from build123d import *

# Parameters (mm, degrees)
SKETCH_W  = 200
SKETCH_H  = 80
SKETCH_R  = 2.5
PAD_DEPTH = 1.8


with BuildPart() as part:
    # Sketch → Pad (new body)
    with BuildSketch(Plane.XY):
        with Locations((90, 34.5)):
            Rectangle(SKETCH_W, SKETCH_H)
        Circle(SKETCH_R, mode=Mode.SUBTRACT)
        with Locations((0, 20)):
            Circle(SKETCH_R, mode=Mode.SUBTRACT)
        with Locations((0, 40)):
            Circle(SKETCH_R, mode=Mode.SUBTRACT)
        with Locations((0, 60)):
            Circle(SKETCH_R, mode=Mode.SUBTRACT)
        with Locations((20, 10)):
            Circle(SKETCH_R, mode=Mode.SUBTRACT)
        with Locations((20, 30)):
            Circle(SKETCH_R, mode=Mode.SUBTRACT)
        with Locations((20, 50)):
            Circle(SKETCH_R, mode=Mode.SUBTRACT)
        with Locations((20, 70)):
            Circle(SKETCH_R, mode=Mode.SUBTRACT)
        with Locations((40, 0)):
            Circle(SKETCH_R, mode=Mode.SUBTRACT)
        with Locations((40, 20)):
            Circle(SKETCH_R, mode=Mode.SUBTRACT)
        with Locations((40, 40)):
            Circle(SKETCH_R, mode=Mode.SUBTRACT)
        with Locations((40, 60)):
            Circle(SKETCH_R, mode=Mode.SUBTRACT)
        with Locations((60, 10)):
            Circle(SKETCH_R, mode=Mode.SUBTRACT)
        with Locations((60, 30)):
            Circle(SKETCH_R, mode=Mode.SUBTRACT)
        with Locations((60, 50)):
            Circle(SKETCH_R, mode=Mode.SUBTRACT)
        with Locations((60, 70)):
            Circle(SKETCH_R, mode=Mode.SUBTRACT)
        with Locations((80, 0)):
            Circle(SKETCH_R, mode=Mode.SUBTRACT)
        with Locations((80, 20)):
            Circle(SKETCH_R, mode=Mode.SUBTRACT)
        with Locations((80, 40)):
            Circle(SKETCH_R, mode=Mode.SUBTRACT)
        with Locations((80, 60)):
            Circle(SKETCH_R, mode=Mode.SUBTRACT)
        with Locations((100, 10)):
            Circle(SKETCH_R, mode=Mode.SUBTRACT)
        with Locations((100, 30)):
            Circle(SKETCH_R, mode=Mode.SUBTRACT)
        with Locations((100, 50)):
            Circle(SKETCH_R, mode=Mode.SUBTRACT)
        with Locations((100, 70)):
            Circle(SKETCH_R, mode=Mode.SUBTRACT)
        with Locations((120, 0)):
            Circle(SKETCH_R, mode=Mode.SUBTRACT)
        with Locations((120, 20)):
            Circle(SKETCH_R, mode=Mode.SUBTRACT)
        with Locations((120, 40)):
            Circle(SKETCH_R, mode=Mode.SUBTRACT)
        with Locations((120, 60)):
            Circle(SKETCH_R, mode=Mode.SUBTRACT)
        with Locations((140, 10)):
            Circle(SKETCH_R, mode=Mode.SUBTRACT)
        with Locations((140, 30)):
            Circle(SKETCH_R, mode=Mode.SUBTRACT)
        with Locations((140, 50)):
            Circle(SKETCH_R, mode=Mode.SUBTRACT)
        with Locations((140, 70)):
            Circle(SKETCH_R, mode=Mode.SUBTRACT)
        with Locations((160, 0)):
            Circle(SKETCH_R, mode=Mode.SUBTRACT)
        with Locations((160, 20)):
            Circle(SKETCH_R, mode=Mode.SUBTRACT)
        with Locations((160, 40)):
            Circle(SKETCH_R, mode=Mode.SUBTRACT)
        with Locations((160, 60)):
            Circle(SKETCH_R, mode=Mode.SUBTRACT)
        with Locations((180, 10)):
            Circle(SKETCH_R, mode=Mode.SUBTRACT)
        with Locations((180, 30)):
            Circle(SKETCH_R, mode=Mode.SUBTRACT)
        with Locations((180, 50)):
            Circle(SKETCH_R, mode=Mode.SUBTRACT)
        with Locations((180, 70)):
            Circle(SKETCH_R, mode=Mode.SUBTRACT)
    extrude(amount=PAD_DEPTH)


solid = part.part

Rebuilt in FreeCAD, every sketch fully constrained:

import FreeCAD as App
import Part
import Sketcher
Q = App.Units.Quantity


def add_polygon(sketch, points):
    """Adds a closed chain of lines whose ends are joined by coincident constraints."""
    first, n = sketch.GeometryCount, len(points)
    for a, b in zip(points, points[1:] + points[:1]):
        sketch.addGeometry(Part.LineSegment(App.Vector(*a, 0), App.Vector(*b, 0)), False)
    for i in range(n):
        sketch.addConstraint(Sketcher.Constraint("Coincident", first + i, 2, first + (i + 1) % n, 1))

doc = App.newDocument("Part")
body = doc.addObject("PartDesign::Body", "Body")

# Sketch on XY plane
sketch1 = body.newObject("Sketcher::SketchObject", "Sketch")
sketch1.AttachmentSupport = (doc.getObject("XY_Plane"), [""])
sketch1.MapMode = "FlatFace"
add_polygon(sketch1, [(-10, 74.5), (-10, -5.5), (190, -5.5), (190, 74.5)])  # lines 0-3
sketch1.addGeometry(Part.Circle(App.Vector(0, 0, 0), App.Vector(0, 0, 1), 2.5), False)  # 4
sketch1.addGeometry(Part.Circle(App.Vector(40, 0, 0), App.Vector(0, 0, 1), 2.5), False)  # 5
sketch1.addGeometry(Part.Circle(App.Vector(20, 10, 0), App.Vector(0, 0, 1), 2.5), False)  # 6
sketch1.addGeometry(Part.Circle(App.Vector(80, 0, 0), App.Vector(0, 0, 1), 2.5), False)  # 7
sketch1.addGeometry(Part.Circle(App.Vector(60, 10, 0), App.Vector(0, 0, 1), 2.5), False)  # 8
sketch1.addGeometry(Part.Circle(App.Vector(0, 20, 0), App.Vector(0, 0, 1), 2.5), False)  # 9
sketch1.addGeometry(Part.Circle(App.Vector(40, 20, 0), App.Vector(0, 0, 1), 2.5), False)  # 10
sketch1.addGeometry(Part.Circle(App.Vector(20, 30, 0), App.Vector(0, 0, 1), 2.5), False)  # 11
sketch1.addGeometry(Part.Circle(App.Vector(80, 20, 0), App.Vector(0, 0, 1), 2.5), False)  # 12
sketch1.addGeometry(Part.Circle(App.Vector(60, 30, 0), App.Vector(0, 0, 1), 2.5), False)  # 13
sketch1.addGeometry(Part.Circle(App.Vector(120, 0, 0), App.Vector(0, 0, 1), 2.5), False)  # 14
sketch1.addGeometry(Part.Circle(App.Vector(100, 10, 0), App.Vector(0, 0, 1), 2.5), False)  # 15
sketch1.addGeometry(Part.Circle(App.Vector(160, 0, 0), App.Vector(0, 0, 1), 2.5), False)  # 16
sketch1.addGeometry(Part.Circle(App.Vector(140, 10, 0), App.Vector(0, 0, 1), 2.5), False)  # 17
sketch1.addGeometry(Part.Circle(App.Vector(180, 10, 0), App.Vector(0, 0, 1), 2.5), False)  # 18
sketch1.addGeometry(Part.Circle(App.Vector(120, 20, 0), App.Vector(0, 0, 1), 2.5), False)  # 19
sketch1.addGeometry(Part.Circle(App.Vector(100, 30, 0), App.Vector(0, 0, 1), 2.5), False)  # 20
sketch1.addGeometry(Part.Circle(App.Vector(160, 20, 0), App.Vector(0, 0, 1), 2.5), False)  # 21
sketch1.addGeometry(Part.Circle(App.Vector(140, 30, 0), App.Vector(0, 0, 1), 2.5), False)  # 22
sketch1.addGeometry(Part.Circle(App.Vector(180, 30, 0), App.Vector(0, 0, 1), 2.5), False)  # 23
sketch1.addGeometry(Part.Circle(App.Vector(0, 40, 0), App.Vector(0, 0, 1), 2.5), False)  # 24
sketch1.addGeometry(Part.Circle(App.Vector(40, 40, 0), App.Vector(0, 0, 1), 2.5), False)  # 25
sketch1.addGeometry(Part.Circle(App.Vector(20, 50, 0), App.Vector(0, 0, 1), 2.5), False)  # 26
sketch1.addGeometry(Part.Circle(App.Vector(80, 40, 0), App.Vector(0, 0, 1), 2.5), False)  # 27
sketch1.addGeometry(Part.Circle(App.Vector(60, 50, 0), App.Vector(0, 0, 1), 2.5), False)  # 28
sketch1.addGeometry(Part.Circle(App.Vector(0, 60, 0), App.Vector(0, 0, 1), 2.5), False)  # 29
sketch1.addGeometry(Part.Circle(App.Vector(40, 60, 0), App.Vector(0, 0, 1), 2.5), False)  # 30
sketch1.addGeometry(Part.Circle(App.Vector(20, 70, 0), App.Vector(0, 0, 1), 2.5), False)  # 31
sketch1.addGeometry(Part.Circle(App.Vector(80, 60, 0), App.Vector(0, 0, 1), 2.5), False)  # 32
sketch1.addGeometry(Part.Circle(App.Vector(60, 70, 0), App.Vector(0, 0, 1), 2.5), False)  # 33
sketch1.addGeometry(Part.Circle(App.Vector(120, 40, 0), App.Vector(0, 0, 1), 2.5), False)  # 34
sketch1.addGeometry(Part.Circle(App.Vector(100, 50, 0), App.Vector(0, 0, 1), 2.5), False)  # 35
sketch1.addGeometry(Part.Circle(App.Vector(160, 40, 0), App.Vector(0, 0, 1), 2.5), False)  # 36
sketch1.addGeometry(Part.Circle(App.Vector(140, 50, 0), App.Vector(0, 0, 1), 2.5), False)  # 37
sketch1.addGeometry(Part.Circle(App.Vector(180, 50, 0), App.Vector(0, 0, 1), 2.5), False)  # 38
sketch1.addGeometry(Part.Circle(App.Vector(120, 60, 0), App.Vector(0, 0, 1), 2.5), False)  # 39
sketch1.addGeometry(Part.Circle(App.Vector(100, 70, 0), App.Vector(0, 0, 1), 2.5), False)  # 40
sketch1.addGeometry(Part.Circle(App.Vector(160, 60, 0), App.Vector(0, 0, 1), 2.5), False)  # 41
sketch1.addGeometry(Part.Circle(App.Vector(140, 70, 0), App.Vector(0, 0, 1), 2.5), False)  # 42
sketch1.addGeometry(Part.Circle(App.Vector(180, 70, 0), App.Vector(0, 0, 1), 2.5), False)  # 43
sketch1.addConstraint([
    Sketcher.Constraint("Vertical", 0),
    Sketcher.Constraint("Horizontal", 1),
    Sketcher.Constraint("Vertical", 2),
    Sketcher.Constraint("Horizontal", 3),
    Sketcher.Constraint("Coincident", 4, 3, -1, 1),
    Sketcher.Constraint("Equal", 4, 5),
    Sketcher.Constraint("Equal", 5, 6),
    Sketcher.Constraint("Equal", 6, 7),
    Sketcher.Constraint("Equal", 7, 8),
    Sketcher.Constraint("Equal", 8, 9),
    Sketcher.Constraint("Equal", 9, 10),
    Sketcher.Constraint("Equal", 10, 11),
    Sketcher.Constraint("Equal", 11, 12),
    Sketcher.Constraint("Equal", 12, 13),
    Sketcher.Constraint("Equal", 13, 14),
    Sketcher.Constraint("Equal", 14, 15),
    Sketcher.Constraint("Equal", 15, 16),
    Sketcher.Constraint("Equal", 16, 17),
    Sketcher.Constraint("Equal", 17, 18),
    Sketcher.Constraint("Equal", 18, 19),
    Sketcher.Constraint("Equal", 19, 20),
    Sketcher.Constraint("Equal", 20, 21),
    Sketcher.Constraint("Equal", 21, 22),
    Sketcher.Constraint("Equal", 22, 23),
    Sketcher.Constraint("Equal", 23, 24),
    Sketcher.Constraint("Equal", 24, 25),
    Sketcher.Constraint("Equal", 25, 26),
    Sketcher.Constraint("Equal", 26, 27),
    Sketcher.Constraint("Equal", 27, 28),
    Sketcher.Constraint("Equal", 28, 29),
    Sketcher.Constraint("Equal", 29, 30),
    Sketcher.Constraint("Equal", 30, 31),
    Sketcher.Constraint("Equal", 31, 32),
    Sketcher.Constraint("Equal", 32, 33),
    Sketcher.Constraint("Equal", 33, 34),
    Sketcher.Constraint("Equal", 34, 35),
    Sketcher.Constraint("Equal", 35, 36),
    Sketcher.Constraint("Equal", 36, 37),
    Sketcher.Constraint("Equal", 37, 38),
    Sketcher.Constraint("Equal", 38, 39),
    Sketcher.Constraint("Equal", 39, 40),
    Sketcher.Constraint("Equal", 40, 41),
    Sketcher.Constraint("Equal", 41, 42),
    Sketcher.Constraint("Equal", 42, 43),
    Sketcher.Constraint("PointOnObject", 5, 3, -1),
    Sketcher.Constraint("PointOnObject", 7, 3, -1),
    Sketcher.Constraint("PointOnObject", 9, 3, -2),
    Sketcher.Constraint("PointOnObject", 14, 3, -1),
    Sketcher.Constraint("PointOnObject", 16, 3, -1),
    Sketcher.Constraint("PointOnObject", 24, 3, -2),
    Sketcher.Constraint("PointOnObject", 29, 3, -2),
    Sketcher.Constraint("Horizontal", 6, 3, 8, 3),
    Sketcher.Constraint("Horizontal", 9, 3, 10, 3),
    Sketcher.Constraint("Horizontal", 10, 3, 12, 3),
    Sketcher.Constraint("Horizontal", 11, 3, 13, 3),
    Sketcher.Constraint("Horizontal", 8, 3, 15, 3),
    Sketcher.Constraint("Horizontal", 15, 3, 17, 3),
    Sketcher.Constraint("Horizontal", 17, 3, 18, 3),
    Sketcher.Constraint("Horizontal", 12, 3, 19, 3),
    Sketcher.Constraint("Horizontal", 13, 3, 20, 3),
    Sketcher.Constraint("Horizontal", 19, 3, 21, 3),
    Sketcher.Constraint("Horizontal", 20, 3, 22, 3),
    Sketcher.Constraint("Horizontal", 22, 3, 23, 3),
    Sketcher.Constraint("Horizontal", 24, 3, 25, 3),
    Sketcher.Constraint("Horizontal", 25, 3, 27, 3),
    Sketcher.Constraint("Horizontal", 26, 3, 28, 3),
    Sketcher.Constraint("Horizontal", 29, 3, 30, 3),
    Sketcher.Constraint("Horizontal", 30, 3, 32, 3),
    Sketcher.Constraint("Horizontal", 31, 3, 33, 3),
    Sketcher.Constraint("Horizontal", 27, 3, 34, 3),
    Sketcher.Constraint("Horizontal", 28, 3, 35, 3),
    Sketcher.Constraint("Horizontal", 34, 3, 36, 3),
    Sketcher.Constraint("Horizontal", 35, 3, 37, 3),
    Sketcher.Constraint("Horizontal", 37, 3, 38, 3),
    Sketcher.Constraint("Horizontal", 32, 3, 39, 3),
    Sketcher.Constraint("Horizontal", 33, 3, 40, 3),
    Sketcher.Constraint("Horizontal", 39, 3, 41, 3),
    Sketcher.Constraint("Horizontal", 40, 3, 42, 3),
    Sketcher.Constraint("Horizontal", 42, 3, 43, 3),
    Sketcher.Constraint("Vertical", 5, 3, 10, 3),
    Sketcher.Constraint("Vertical", 6, 3, 11, 3),
    Sketcher.Constraint("Vertical", 7, 3, 12, 3),
    Sketcher.Constraint("Vertical", 8, 3, 13, 3),
    Sketcher.Constraint("Vertical", 14, 3, 19, 3),
    Sketcher.Constraint("Vertical", 15, 3, 20, 3),
    Sketcher.Constraint("Vertical", 16, 3, 21, 3),
    Sketcher.Constraint("Vertical", 17, 3, 22, 3),
    Sketcher.Constraint("Vertical", 18, 3, 23, 3),
    Sketcher.Constraint("Vertical", 10, 3, 25, 3),
    Sketcher.Constraint("Vertical", 11, 3, 26, 3),
    Sketcher.Constraint("Vertical", 12, 3, 27, 3),
    Sketcher.Constraint("Vertical", 13, 3, 28, 3),
    Sketcher.Constraint("Vertical", 25, 3, 30, 3),
    Sketcher.Constraint("Vertical", 26, 3, 31, 3),
    Sketcher.Constraint("Vertical", 27, 3, 32, 3),
    Sketcher.Constraint("Vertical", 28, 3, 33, 3),
    Sketcher.Constraint("Vertical", 19, 3, 34, 3),
    Sketcher.Constraint("Vertical", 20, 3, 35, 3),
    Sketcher.Constraint("Vertical", 21, 3, 36, 3),
    Sketcher.Constraint("Vertical", 22, 3, 37, 3),
    Sketcher.Constraint("Vertical", 23, 3, 38, 3),
    Sketcher.Constraint("Vertical", 34, 3, 39, 3),
    Sketcher.Constraint("Vertical", 35, 3, 40, 3),
    Sketcher.Constraint("Vertical", 36, 3, 41, 3),
    Sketcher.Constraint("Vertical", 37, 3, 42, 3),
    Sketcher.Constraint("Vertical", 38, 3, 43, 3),
    Sketcher.Constraint("Diameter", 4, Q("5 mm")),
    Sketcher.Constraint("DistanceX", 1, 1, 1, 2, Q("200 mm")),
    Sketcher.Constraint("DistanceY", 0, 2, 0, 1, Q("80 mm")),
    Sketcher.Constraint("DistanceX", -1, 1, 5, 3, Q("40 mm")),
    Sketcher.Constraint("DistanceX", -1, 1, 6, 3, Q("20 mm")),
    Sketcher.Constraint("DistanceY", -1, 1, 6, 3, Q("10 mm")),
    Sketcher.Constraint("DistanceX", -1, 1, 7, 3, Q("80 mm")),
    Sketcher.Constraint("DistanceX", -1, 1, 8, 3, Q("60 mm")),
    Sketcher.Constraint("DistanceY", -1, 1, 9, 3, Q("20 mm")),
    Sketcher.Constraint("DistanceY", -1, 1, 11, 3, Q("30 mm")),
    Sketcher.Constraint("DistanceX", -1, 1, 14, 3, Q("120 mm")),
    Sketcher.Constraint("DistanceX", -1, 1, 15, 3, Q("100 mm")),
    Sketcher.Constraint("DistanceX", -1, 1, 16, 3, Q("160 mm")),
    Sketcher.Constraint("DistanceX", -1, 1, 17, 3, Q("140 mm")),
    Sketcher.Constraint("DistanceX", -1, 1, 18, 3, Q("180 mm")),
    Sketcher.Constraint("DistanceY", -1, 1, 24, 3, Q("40 mm")),
    Sketcher.Constraint("DistanceY", -1, 1, 26, 3, Q("50 mm")),
    Sketcher.Constraint("DistanceY", -1, 1, 29, 3, Q("60 mm")),
    Sketcher.Constraint("DistanceY", -1, 1, 31, 3, Q("70 mm")),
    Sketcher.Constraint("DistanceX", 0, 2, -1, 1, Q("10 mm")),
    Sketcher.Constraint("DistanceY", 0, 2, -1, 1, Q("5.5 mm")),
])
pad1 = body.newObject("PartDesign::Pad", "Pad")
pad1.Profile = sketch1
pad1.Length = 1.8

doc.recompute()
